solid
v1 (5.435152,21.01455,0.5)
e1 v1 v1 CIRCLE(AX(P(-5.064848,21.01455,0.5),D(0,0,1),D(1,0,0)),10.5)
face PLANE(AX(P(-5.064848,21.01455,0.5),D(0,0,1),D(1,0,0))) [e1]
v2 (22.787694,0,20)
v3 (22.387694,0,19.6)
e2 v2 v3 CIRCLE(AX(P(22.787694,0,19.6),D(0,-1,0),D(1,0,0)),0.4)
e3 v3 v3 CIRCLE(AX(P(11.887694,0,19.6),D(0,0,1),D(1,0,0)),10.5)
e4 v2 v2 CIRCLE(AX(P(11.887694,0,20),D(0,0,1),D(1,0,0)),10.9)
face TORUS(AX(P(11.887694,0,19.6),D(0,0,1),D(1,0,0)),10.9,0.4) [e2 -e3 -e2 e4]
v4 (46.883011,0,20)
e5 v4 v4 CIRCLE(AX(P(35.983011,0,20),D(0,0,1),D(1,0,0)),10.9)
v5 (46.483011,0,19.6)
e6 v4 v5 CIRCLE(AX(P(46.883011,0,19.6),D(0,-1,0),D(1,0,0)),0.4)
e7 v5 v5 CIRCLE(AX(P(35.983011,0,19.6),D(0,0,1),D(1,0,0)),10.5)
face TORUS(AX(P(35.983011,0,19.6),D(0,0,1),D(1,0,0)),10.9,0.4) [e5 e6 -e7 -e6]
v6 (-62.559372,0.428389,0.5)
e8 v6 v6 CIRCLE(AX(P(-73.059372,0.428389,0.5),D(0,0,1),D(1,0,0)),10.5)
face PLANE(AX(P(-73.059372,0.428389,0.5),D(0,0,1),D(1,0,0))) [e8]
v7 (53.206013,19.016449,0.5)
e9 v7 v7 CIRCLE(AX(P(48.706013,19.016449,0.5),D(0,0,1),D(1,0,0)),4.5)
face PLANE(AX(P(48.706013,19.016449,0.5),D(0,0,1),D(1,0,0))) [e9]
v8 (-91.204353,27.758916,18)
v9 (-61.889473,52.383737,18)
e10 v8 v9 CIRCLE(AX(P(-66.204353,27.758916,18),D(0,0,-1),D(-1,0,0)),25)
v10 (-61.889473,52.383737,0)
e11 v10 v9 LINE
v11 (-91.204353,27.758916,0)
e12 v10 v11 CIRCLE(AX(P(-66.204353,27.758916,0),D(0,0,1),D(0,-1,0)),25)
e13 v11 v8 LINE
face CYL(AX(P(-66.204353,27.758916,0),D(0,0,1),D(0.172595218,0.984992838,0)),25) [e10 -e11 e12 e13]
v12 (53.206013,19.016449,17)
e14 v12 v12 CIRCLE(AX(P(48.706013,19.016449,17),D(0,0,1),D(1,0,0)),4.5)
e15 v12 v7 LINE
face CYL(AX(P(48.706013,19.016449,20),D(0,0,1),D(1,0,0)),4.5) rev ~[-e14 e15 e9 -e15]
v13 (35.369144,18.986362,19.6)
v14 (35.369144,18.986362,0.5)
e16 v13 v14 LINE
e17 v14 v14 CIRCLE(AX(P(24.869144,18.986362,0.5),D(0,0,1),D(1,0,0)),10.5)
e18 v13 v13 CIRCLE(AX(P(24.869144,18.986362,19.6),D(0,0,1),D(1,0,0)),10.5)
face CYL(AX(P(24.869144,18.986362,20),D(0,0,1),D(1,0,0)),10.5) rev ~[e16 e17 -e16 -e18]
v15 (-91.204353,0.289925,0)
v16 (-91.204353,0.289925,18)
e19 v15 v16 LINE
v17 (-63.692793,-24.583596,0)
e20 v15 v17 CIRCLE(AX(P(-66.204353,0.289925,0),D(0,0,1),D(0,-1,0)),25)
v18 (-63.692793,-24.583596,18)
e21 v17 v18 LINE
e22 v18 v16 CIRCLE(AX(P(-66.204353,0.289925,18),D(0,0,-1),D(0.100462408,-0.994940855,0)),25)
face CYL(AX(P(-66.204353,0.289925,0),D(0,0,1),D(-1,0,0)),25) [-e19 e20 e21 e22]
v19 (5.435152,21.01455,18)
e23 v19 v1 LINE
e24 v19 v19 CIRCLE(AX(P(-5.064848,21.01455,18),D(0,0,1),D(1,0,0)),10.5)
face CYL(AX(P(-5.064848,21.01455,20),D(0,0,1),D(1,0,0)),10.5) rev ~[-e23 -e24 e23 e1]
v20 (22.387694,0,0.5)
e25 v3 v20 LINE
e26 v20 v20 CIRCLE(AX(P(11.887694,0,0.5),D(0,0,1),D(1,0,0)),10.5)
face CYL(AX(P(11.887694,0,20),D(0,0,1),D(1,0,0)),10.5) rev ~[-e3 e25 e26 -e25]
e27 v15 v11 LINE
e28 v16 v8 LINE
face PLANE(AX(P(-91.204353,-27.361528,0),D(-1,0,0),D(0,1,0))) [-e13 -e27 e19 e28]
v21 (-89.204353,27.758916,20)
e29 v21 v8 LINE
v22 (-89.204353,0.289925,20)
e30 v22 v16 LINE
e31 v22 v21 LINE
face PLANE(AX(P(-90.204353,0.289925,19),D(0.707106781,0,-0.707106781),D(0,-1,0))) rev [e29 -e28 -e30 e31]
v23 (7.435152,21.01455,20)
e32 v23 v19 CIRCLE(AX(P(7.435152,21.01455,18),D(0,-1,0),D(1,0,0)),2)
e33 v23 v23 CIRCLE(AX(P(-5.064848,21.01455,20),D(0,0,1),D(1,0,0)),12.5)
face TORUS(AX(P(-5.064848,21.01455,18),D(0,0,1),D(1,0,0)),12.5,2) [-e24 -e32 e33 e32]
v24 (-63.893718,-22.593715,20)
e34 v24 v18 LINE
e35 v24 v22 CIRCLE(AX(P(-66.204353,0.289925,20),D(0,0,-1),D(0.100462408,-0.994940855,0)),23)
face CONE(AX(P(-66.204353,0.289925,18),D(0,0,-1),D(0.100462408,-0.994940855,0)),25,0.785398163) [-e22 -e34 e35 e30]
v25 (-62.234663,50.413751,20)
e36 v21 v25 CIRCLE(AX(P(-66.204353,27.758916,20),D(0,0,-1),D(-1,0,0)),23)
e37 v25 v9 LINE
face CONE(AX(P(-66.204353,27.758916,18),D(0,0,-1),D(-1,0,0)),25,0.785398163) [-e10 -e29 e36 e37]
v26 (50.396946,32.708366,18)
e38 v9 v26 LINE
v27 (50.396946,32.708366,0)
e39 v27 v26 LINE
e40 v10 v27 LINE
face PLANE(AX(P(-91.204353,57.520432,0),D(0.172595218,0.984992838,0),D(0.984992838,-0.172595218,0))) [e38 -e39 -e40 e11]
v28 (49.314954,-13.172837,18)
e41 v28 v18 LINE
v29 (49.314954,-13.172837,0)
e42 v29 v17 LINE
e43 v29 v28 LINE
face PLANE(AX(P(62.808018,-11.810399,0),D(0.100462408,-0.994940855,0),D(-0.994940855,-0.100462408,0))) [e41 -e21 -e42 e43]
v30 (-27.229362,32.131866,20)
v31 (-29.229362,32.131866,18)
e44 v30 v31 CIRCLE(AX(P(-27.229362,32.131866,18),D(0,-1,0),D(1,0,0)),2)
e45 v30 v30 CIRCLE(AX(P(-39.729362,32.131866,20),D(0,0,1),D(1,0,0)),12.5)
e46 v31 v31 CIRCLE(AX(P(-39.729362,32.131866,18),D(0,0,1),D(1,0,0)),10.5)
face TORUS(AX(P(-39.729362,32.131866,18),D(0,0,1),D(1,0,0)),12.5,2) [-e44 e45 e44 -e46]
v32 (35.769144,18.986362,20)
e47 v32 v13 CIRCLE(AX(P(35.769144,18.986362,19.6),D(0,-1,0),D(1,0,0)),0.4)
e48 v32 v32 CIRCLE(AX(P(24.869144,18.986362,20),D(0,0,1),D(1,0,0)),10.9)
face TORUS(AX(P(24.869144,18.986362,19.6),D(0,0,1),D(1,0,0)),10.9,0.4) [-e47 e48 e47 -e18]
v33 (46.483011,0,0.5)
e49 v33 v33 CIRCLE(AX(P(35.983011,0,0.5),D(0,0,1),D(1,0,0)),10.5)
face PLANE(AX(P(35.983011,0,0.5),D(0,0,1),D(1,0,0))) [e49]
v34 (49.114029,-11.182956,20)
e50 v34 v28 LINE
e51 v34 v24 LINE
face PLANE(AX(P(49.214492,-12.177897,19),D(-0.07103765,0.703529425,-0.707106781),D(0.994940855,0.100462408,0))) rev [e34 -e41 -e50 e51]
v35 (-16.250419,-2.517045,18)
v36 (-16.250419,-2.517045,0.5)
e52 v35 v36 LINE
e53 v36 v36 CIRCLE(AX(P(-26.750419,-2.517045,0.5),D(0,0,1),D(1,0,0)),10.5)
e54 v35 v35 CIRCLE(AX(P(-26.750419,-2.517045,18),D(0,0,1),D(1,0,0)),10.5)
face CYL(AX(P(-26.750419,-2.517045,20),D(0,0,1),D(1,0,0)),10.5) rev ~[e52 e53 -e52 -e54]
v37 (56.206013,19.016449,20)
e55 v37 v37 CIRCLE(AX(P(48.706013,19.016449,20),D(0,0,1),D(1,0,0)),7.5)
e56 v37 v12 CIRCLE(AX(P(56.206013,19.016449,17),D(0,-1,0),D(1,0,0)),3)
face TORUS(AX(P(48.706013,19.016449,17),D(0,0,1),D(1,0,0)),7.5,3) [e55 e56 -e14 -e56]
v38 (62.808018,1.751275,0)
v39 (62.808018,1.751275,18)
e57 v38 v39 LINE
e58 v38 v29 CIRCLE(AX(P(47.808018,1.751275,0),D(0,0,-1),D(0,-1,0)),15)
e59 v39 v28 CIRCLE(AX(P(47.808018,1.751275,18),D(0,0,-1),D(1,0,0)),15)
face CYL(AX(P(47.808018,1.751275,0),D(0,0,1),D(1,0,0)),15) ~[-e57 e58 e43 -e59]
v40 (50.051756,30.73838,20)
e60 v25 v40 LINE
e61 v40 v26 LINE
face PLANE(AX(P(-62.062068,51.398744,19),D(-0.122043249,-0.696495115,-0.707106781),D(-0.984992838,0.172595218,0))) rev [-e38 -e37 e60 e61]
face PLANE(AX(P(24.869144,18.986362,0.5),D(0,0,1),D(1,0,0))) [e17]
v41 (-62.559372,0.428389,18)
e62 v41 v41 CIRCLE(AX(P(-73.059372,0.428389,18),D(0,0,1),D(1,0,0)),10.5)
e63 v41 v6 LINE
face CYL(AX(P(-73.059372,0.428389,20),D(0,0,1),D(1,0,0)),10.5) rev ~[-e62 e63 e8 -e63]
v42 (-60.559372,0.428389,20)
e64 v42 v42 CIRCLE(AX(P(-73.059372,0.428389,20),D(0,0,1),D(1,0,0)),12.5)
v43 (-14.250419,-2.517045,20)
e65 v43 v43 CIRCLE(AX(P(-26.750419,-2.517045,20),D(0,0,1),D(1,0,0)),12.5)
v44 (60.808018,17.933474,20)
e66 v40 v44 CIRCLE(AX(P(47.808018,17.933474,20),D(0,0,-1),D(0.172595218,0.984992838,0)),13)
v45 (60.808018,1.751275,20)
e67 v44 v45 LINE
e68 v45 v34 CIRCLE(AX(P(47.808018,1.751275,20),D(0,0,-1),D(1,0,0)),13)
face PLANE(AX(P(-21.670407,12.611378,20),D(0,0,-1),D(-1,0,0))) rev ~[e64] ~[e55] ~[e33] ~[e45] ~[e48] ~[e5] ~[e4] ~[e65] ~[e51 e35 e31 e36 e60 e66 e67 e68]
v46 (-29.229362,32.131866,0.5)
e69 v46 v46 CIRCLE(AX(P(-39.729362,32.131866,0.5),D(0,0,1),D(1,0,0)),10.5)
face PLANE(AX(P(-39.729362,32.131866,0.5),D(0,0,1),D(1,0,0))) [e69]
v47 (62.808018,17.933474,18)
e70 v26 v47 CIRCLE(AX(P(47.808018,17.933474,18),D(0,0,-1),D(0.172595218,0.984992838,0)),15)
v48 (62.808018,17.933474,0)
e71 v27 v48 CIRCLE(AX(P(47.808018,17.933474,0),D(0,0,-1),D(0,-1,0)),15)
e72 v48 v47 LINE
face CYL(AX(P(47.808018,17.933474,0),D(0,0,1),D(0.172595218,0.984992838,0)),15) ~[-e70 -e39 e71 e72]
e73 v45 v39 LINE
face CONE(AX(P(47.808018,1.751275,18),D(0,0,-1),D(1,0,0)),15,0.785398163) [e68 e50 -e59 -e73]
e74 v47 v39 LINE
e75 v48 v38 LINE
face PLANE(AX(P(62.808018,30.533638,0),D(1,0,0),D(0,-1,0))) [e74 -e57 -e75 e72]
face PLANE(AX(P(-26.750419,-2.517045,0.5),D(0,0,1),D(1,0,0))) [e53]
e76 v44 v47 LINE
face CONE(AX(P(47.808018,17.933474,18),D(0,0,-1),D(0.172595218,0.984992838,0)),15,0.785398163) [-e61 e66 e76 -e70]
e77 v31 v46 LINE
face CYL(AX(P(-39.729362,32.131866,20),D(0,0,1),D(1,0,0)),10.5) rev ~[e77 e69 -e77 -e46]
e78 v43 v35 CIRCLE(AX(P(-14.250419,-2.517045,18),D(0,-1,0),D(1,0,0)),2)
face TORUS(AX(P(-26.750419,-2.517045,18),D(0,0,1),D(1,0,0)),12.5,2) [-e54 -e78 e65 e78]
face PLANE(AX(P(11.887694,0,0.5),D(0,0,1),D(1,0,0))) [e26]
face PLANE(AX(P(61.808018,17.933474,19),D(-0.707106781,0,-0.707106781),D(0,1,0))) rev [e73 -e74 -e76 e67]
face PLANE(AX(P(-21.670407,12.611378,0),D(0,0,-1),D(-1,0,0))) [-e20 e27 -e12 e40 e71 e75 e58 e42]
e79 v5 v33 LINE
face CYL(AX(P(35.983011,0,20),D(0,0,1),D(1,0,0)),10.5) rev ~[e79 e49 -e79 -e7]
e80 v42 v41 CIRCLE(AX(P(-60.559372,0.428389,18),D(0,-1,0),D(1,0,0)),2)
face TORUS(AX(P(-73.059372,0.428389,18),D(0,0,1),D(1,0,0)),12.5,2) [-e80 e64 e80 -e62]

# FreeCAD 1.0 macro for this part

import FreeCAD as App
import Part
import Sketcher

V = App.Vector


def edges_at(feature, points):
    """Names of the edges that pass closest to the given points."""
    edges = feature.Shape.Edges
    near = lambda p: min(range(len(edges)), key=lambda i: edges[i].distToShape(Part.Vertex(*p))[0])
    return sorted({f"Edge{near(p) + 1}" for p in points})

doc = App.newDocument("Part")
body = doc.addObject("PartDesign::Body", "Body")

sketch1 = body.newObject("Sketcher::SketchObject", "Sketch")
sketch1.AttachmentSupport = (doc.getObject("XY_Plane"), [""])
sketch1.MapMode = "FlatFace"
sketch1.addGeometry([
    Part.LineSegment(V(63, 31, 0), V(-91, 58, 0)),
    Part.LineSegment(V(-91, 58, 0), V(-91, -27, 0)),
    Part.LineSegment(V(-91, -27, 0), V(63, -12, 0)),
    Part.LineSegment(V(63, -12, 0), V(63, 31, 0)),
], False)
sketch1.addConstraint([
    Sketcher.Constraint("Coincident", 0, 2, 1, 1),
    Sketcher.Constraint("Coincident", 1, 2, 2, 1),
    Sketcher.Constraint("Coincident", 2, 2, 3, 1),
    Sketcher.Constraint("Coincident", 3, 2, 0, 1),
    Sketcher.Constraint("Vertical", 1),
    Sketcher.Constraint("Vertical", 3),
    Sketcher.Constraint("DistanceY", 1, 2, 1, 1, 84.88196),
    Sketcher.Constraint("DistanceY", 2, 2, -1, 1, 11.810399),
    Sketcher.Constraint("DistanceY", 3, 1, 3, 2, 42.344037),
    Sketcher.Constraint("DistanceY", 1, 2, -1, 1, 27.361528),
    Sketcher.Constraint("DistanceX", 1, 2, 2, 2, 154.012371),
    Sketcher.Constraint("DistanceX", 0, 2, -1, 1, 91.204353),
])
pad1 = body.newObject("PartDesign::Pad", "Pad")
pad1.Profile = sketch1
pad1.Length = 20

sketch2 = body.newObject("Sketcher::SketchObject", "Sketch001")
sketch2.AttachmentSupport = (doc.getObject("XY_Plane"), [""])
sketch2.MapMode = "FlatFace"
sketch2.AttachmentOffset = App.Placement(V(0, 0, 20), App.Rotation())
sketch2.addGeometry([
    Part.Circle(V(-73.1, 0.4, 0), V(0, 0, 1), 10.5),
    Part.Circle(V(-26.8, -2.5, 0), V(0, 0, 1), 10.5),
    Part.Circle(V(36, 0, 0), V(0, 0, 1), 10.5),
    Part.Circle(V(-39.7, 32.1, 0), V(0, 0, 1), 10.5),
    Part.Circle(V(-5.1, 21, 0), V(0, 0, 1), 10.5),
    Part.Circle(V(11.9, 0, 0), V(0, 0, 1), 10.5),
    Part.Circle(V(48.7, 19, 0), V(0, 0, 1), 4.5),
    Part.Circle(V(24.9, 19, 0), V(0, 0, 1), 10.5),
], False)
sketch2.addConstraint([
    Sketcher.Constraint("Equal", 0, 1),
    Sketcher.Constraint("Equal", 1, 2),
    Sketcher.Constraint("Equal", 2, 3),
    Sketcher.Constraint("Equal", 3, 4),
    Sketcher.Constraint("Equal", 4, 5),
    Sketcher.Constraint("Equal", 5, 7),
    Sketcher.Constraint("PointOnObject", 2, 3, -1),
    Sketcher.Constraint("PointOnObject", 5, 3, -1),
    Sketcher.Constraint("Diameter", 0, 21.0),
    Sketcher.Constraint("Diameter", 6, 9.0),
    Sketcher.Constraint("DistanceY", 6, 3, 4, 3, 1.998101),
    Sketcher.Constraint("DistanceX", 0, 3, -1, 1, 73.059372),
    Sketcher.Constraint("DistanceY", -1, 1, 0, 3, 0.428389),
    Sketcher.Constraint("DistanceX", 1, 3, -1, 1, 26.750419),
    Sketcher.Constraint("DistanceX", -1, 1, 2, 3, 35.983011),
    Sketcher.Constraint("DistanceY", -1, 1, 4, 3, 21.01455),
    Sketcher.Constraint("DistanceY", -1, 1, 7, 3, 18.986362),
    Sketcher.Constraint("DistanceY", 1, 3, 3, 3, 34.648911),
    Sketcher.Constraint("DistanceX", 0, 3, 3, 3, 33.33001),
    Sketcher.Constraint("DistanceX", 1, 3, 4, 3, 21.685571),
    Sketcher.Constraint("DistanceX", 5, 3, 6, 3, 36.818319),
    Sketcher.Constraint("DistanceX", 4, 3, 6, 3, 53.770861),
    Sketcher.Constraint("DistanceX", 5, 3, 7, 3, 12.98145),
    Sketcher.Constraint("DistanceY", 1, 3, -1, 1, 2.517045),
])
pocket1 = body.newObject("PartDesign::Pocket", "Pocket")
pocket1.Profile = sketch2
pocket1.Length = 19.5
doc.recompute()

fillet = body.newObject("PartDesign::Fillet", "Fillet")
fillet.Base = (pocket1, edges_at(pocket1, [(-91.204, -27.362, 10), (-91.204, 57.52, 10)]))
fillet.Radius = 25
doc.recompute()

fillet2 = body.newObject("PartDesign::Fillet", "Fillet001")
fillet2.Base = (fillet, edges_at(fillet, [(62.808, -11.81, 10), (62.808, 30.534, 10)]))
fillet2.Radius = 15
doc.recompute()

chamfer = body.newObject("PartDesign::Chamfer", "Chamfer")
chamfer.Base = (fillet2, edges_at(fillet2, [(-7.189, -18.878, 20)]))
chamfer.Size = 2
doc.recompute()

fillet3 = body.newObject("PartDesign::Fillet", "Fillet002")
fillet3.Base = (chamfer, edges_at(chamfer, [
    (-83.559, 0.428, 20),
    (-50.229, 32.132, 20),
    (-37.25, -2.517, 20),
    (-15.565, 21.015, 20),
]))
fillet3.Radius = 2
doc.recompute()

fillet4 = body.newObject("PartDesign::Fillet", "Fillet003")
fillet4.Base = (fillet3, edges_at(fillet3, [(1.388, 0, 20), (25.483, 0, 20), (14.369, 18.986, 20)]))
fillet4.Radius = 0.4
doc.recompute()

fillet5 = body.newObject("PartDesign::Fillet", "Fillet004")
fillet5.Base = (fillet4, edges_at(fillet4, [(44.206, 19.016, 20)]))
fillet5.Radius = 3

doc.recompute()
